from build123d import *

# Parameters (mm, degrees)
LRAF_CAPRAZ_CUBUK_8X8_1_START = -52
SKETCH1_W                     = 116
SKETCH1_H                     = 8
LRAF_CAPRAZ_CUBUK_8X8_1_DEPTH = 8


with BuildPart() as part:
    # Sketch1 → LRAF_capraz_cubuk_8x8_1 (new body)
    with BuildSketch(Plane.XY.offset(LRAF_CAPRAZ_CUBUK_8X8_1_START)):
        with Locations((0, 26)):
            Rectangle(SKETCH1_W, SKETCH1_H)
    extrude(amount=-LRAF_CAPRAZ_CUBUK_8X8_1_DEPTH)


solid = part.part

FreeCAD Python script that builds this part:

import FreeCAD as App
import Part
import Sketcher
Q = App.Units.Quantity

doc = App.newDocument("Part")
body = doc.addObject("PartDesign::Body", "Body")

# Sketch on XY plane
sketch1 = body.newObject("Sketcher::SketchObject", "Sketch")
sketch1.AttachmentSupport = (doc.getObject("XY_Plane"), [""])
sketch1.MapMode = "FlatFace"
sketch1.AttachmentOffset = App.Placement(App.Vector(0, 0, -52), App.Rotation())
sketch1.addGeometry(Part.LineSegment(App.Vector(-58, 30, 0), App.Vector(-58, 22, 0)), False)
sketch1.addGeometry(Part.LineSegment(App.Vector(-58, 22, 0), App.Vector(58, 22, 0)), False)
sketch1.addGeometry(Part.LineSegment(App.Vector(58, 22, 0), App.Vector(58, 30, 0)), False)
sketch1.addGeometry(Part.LineSegment(App.Vector(58, 30, 0), App.Vector(-58, 30, 0)), False)
sketch1.addConstraint(Sketcher.Constraint("Coincident", 0, 2, 1, 1))
sketch1.addConstraint(Sketcher.Constraint("Coincident", 1, 2, 2, 1))
sketch1.addConstraint(Sketcher.Constraint("Coincident", 2, 2, 3, 1))
sketch1.addConstraint(Sketcher.Constraint("Coincident", 3, 2, 0, 1))
sketch1.addConstraint(Sketcher.Constraint("Vertical", 0))
sketch1.addConstraint(Sketcher.Constraint("Horizontal", 1))
sketch1.addConstraint(Sketcher.Constraint("Vertical", 2))
sketch1.addConstraint(Sketcher.Constraint("Horizontal", 3))
sketch1.addConstraint(Sketcher.Constraint("DistanceX", 1, 1, 1, 2, Q("116 mm")))
sketch1.addConstraint(Sketcher.Constraint("DistanceY", 0, 2, 0, 1, Q("8 mm")))
sketch1.addConstraint(Sketcher.Constraint("DistanceX", 0, 2, -1, 1, Q("58 mm")))
sketch1.addConstraint(Sketcher.Constraint("DistanceY", -1, 1, 0, 2, Q("22 mm")))
pad1 = body.newObject("PartDesign::Pad", "Pad")
pad1.Profile = sketch1
pad1.Length = 8
pad1.Reversed = True

doc.recompute()
